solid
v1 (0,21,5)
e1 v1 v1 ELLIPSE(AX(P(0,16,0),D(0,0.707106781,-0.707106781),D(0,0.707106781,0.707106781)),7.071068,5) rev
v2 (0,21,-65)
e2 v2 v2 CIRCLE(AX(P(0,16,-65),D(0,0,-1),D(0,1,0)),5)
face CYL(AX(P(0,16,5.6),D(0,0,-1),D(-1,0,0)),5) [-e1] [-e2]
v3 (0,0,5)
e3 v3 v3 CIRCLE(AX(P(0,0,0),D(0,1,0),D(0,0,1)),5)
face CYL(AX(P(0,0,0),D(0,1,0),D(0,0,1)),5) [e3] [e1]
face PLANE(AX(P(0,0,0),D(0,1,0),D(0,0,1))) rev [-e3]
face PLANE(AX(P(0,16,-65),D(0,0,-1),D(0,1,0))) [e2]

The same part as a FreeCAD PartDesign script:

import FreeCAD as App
import Part
import Sketcher
from FreeCAD import Vector
Q = App.Units.Quantity

doc = App.newDocument("Part")
body = doc.addObject("PartDesign::Body", "Body")

# Sketch on XZ plane
sketch1 = doc.addObject("Sketcher::SketchObject", "Sketch")
body.addObject(sketch1)
sketch1.AttachmentSupport = (doc.XZ_Plane, [""])
sketch1.MapMode = "FlatFace"
sketch1.addGeometry(Part.Circle(Vector(0, 0, 0), Vector(0, 0, 1), 5), False)
sketch1.addConstraint(Sketcher.Constraint("Coincident", 0, 3, -1, 1))
sketch1.addConstraint(Sketcher.Constraint("Diameter", 0, Q("10 mm")))

# Sketch on YZ plane
sketch2 = doc.addObject("Sketcher::SketchObject", "Sketch001")
body.addObject(sketch2)
sketch2.AttachmentSupport = (doc.YZ_Plane, [""])
sketch2.MapMode = "FlatFace"
sketch2.addGeometry(Part.LineSegment(Vector(0, 0, 0), Vector(16, 0, 0)), False)
sketch2.addGeometry(Part.LineSegment(Vector(16, 0, 0), Vector(16, -65, 0)), False)
sketch2.addConstraint(Sketcher.Constraint("Coincident", 0, 2, 1, 1))
sketch2.addConstraint(Sketcher.Constraint("Horizontal", 0))
sketch2.addConstraint(Sketcher.Constraint("Vertical", 1))
sketch2.addConstraint(Sketcher.Constraint("Coincident", 0, 1, -1, 1))
sketch2.addConstraint(Sketcher.Constraint("DistanceX", 0, 1, 0, 2, Q("16 mm")))
sketch2.addConstraint(Sketcher.Constraint("DistanceY", 1, 2, 1, 1, Q("65 mm")))
doc.recompute()

additivepipe = doc.addObject("PartDesign::AdditivePipe", "AdditivePipe")
body.addObject(additivepipe)
additivepipe.Profile = sketch1
additivepipe.Spine = (sketch2, ["Edge1", "Edge2"])
additivepipe.Transition = "Right corner"

doc.recompute()
